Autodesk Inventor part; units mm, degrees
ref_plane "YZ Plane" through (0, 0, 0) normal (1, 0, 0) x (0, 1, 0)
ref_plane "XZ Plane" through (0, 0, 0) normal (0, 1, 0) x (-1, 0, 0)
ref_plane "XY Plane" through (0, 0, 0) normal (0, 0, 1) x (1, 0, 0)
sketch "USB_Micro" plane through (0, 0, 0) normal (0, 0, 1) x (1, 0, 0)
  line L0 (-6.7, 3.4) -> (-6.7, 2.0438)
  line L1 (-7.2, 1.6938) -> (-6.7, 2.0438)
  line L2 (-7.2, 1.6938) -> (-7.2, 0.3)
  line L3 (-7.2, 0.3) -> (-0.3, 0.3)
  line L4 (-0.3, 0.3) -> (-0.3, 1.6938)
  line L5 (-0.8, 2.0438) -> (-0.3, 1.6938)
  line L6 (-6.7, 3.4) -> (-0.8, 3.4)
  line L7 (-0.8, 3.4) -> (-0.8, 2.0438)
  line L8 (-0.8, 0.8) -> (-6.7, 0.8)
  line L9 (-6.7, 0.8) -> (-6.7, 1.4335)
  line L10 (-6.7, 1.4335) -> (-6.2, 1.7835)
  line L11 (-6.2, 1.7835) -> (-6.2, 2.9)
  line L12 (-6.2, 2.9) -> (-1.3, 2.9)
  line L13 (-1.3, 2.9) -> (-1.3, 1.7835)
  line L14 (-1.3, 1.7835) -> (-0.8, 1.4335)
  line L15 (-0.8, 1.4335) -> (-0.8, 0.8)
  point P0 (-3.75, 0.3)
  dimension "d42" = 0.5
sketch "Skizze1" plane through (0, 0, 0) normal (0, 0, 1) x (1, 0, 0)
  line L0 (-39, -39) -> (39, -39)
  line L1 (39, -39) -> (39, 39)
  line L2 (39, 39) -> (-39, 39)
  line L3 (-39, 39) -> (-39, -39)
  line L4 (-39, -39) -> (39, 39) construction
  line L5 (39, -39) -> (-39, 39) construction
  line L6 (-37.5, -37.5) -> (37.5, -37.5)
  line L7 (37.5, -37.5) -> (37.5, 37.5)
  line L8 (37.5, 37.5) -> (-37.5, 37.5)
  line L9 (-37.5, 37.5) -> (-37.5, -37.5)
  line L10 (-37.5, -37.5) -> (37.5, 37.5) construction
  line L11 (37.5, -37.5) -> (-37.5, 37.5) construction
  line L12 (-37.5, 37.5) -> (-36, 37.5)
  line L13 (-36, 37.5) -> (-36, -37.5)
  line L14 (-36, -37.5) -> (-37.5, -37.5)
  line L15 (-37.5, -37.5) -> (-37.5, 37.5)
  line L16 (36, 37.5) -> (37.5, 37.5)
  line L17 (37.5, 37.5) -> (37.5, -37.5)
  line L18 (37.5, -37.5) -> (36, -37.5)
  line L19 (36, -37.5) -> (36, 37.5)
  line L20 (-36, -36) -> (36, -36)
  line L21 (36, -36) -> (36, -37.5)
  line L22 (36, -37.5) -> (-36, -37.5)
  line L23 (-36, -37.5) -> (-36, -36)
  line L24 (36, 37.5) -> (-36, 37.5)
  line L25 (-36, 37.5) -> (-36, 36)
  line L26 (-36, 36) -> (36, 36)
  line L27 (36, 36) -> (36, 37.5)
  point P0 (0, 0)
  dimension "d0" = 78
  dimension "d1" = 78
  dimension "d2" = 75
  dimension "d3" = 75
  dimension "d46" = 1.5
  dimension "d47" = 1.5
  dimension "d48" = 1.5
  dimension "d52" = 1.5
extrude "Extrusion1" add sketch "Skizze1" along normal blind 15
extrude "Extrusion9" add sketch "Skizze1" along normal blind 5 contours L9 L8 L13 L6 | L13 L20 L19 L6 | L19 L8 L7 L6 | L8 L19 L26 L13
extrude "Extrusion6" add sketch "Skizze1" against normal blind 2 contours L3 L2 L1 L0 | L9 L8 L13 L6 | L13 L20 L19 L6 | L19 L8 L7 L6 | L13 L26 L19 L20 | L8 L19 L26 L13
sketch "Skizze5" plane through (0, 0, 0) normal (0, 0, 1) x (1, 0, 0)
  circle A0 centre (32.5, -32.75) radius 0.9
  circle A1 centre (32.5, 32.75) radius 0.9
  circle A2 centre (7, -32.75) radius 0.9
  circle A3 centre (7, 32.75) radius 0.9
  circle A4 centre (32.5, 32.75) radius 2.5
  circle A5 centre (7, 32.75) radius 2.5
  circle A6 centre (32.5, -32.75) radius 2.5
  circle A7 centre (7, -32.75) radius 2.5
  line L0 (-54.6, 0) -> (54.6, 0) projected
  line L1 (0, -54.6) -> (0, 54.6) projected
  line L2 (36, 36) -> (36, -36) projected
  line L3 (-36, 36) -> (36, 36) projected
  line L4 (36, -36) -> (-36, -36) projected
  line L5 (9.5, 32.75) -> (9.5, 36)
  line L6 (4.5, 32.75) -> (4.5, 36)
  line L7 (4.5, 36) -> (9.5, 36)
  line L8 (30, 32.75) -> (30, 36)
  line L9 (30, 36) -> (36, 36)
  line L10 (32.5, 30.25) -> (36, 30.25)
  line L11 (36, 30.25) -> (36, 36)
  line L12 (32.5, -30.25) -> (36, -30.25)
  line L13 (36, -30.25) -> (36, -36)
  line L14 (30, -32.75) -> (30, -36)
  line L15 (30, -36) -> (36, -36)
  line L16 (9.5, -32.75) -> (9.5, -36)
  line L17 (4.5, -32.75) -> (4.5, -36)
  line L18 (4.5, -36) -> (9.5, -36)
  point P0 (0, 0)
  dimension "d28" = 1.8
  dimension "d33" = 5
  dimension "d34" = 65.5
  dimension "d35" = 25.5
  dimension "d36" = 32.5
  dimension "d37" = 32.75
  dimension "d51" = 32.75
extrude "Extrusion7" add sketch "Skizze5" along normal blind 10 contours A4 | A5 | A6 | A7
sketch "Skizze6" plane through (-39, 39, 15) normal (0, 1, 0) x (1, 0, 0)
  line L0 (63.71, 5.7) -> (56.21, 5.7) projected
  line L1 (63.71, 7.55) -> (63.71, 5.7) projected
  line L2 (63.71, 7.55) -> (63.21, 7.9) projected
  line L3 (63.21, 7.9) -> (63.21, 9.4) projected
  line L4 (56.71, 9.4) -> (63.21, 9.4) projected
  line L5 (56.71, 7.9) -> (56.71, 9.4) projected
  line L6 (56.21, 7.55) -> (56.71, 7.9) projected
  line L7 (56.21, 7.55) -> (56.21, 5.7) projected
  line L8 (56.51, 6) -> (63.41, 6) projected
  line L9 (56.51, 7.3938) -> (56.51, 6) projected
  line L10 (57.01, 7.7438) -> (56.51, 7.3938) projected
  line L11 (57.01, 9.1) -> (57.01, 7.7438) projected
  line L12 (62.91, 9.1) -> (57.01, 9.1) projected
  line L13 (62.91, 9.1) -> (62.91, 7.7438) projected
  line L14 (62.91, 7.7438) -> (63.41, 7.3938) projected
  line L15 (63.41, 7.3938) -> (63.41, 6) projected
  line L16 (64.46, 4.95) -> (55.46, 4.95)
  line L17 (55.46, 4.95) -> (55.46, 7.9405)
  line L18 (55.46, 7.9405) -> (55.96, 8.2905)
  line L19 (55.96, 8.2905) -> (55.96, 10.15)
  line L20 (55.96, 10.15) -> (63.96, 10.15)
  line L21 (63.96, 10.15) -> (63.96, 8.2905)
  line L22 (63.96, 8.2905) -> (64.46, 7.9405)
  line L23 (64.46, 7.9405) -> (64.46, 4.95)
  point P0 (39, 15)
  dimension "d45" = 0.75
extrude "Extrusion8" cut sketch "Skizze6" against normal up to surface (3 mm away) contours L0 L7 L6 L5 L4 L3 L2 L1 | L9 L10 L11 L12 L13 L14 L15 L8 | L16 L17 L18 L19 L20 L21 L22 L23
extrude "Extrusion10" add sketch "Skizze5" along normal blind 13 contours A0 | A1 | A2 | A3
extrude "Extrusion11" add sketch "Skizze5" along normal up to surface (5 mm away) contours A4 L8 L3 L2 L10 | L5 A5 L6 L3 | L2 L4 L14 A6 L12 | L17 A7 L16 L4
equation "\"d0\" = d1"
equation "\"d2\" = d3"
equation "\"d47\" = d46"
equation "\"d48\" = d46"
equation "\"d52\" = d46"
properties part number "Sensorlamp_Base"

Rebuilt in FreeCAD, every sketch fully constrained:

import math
import FreeCAD as App
import Part
import Sketcher
from FreeCAD import Vector
Q = App.Units.Quantity


def add_polygon(sketch, points):
    """Adds a closed chain of lines whose ends are joined by coincident constraints."""
    first, n = sketch.GeometryCount, len(points)
    for a, b in zip(points, points[1:] + points[:1]):
        sketch.addGeometry(Part.LineSegment(App.Vector(*a, 0), App.Vector(*b, 0)), False)
    for i in range(n):
        sketch.addConstraint(Sketcher.Constraint("Coincident", first + i, 2, first + (i + 1) % n, 1))

doc = App.newDocument("Part")
params = doc.addObject("Spreadsheet::Sheet", "Params")
for row, (alias, value) in enumerate([
    ("sketch1_width", "78 mm"),
    ("sketch1_width2", "75 mm"),
    ("pad1_length", "15 mm"),
    ("sketch2_width", "75 mm"),
    ("pad2_length", "5 mm"),
    ("sketch3_width", "78 mm"),
    ("pad3_length", "2 mm"),
    ("sketch4_diameter", "5 mm"),
    ("sketch4_diameter2", "1.8 mm"),
    ("pad4_length", "10 mm"),
    ("sketch5_width", "9 mm"),
    ("sketch5_width2", "8 mm"),
    ("pocket1_length", "3 mm"),
    ("sketch6_diameter", "1.8 mm"),
    ("pad5_length", "13 mm"),
    ("sketch7_radius", "2.5 mm"),
    ("sketch7_width", "6 mm"),
    ("pad6_length", "5 mm"),
], start=1):
    params.set(f"A{row}", alias)
    params.set(f"B{row}", "=" + value)
    params.setAlias(f"B{row}", alias)

body = doc.addObject("PartDesign::Body", "Body")

# Sketch on XY plane
sketch1 = doc.addObject("Sketcher::SketchObject", "Sketch")
body.addObject(sketch1)
sketch1.AttachmentSupport = (doc.XY_Plane, [""])
sketch1.MapMode = "FlatFace"
add_polygon(sketch1, [(-39, 39), (-39, -39), (39, -39), (39, 39)])  # lines 0-3
add_polygon(sketch1, [(38, -38), (-38, -38), (-38, 38), (38, 38)])  # lines 4-7
sketch1.addConstraint([
    Sketcher.Constraint("Vertical", 0),
    Sketcher.Constraint("Horizontal", 1),
    Sketcher.Constraint("Vertical", 2),
    Sketcher.Constraint("Horizontal", 3),
    Sketcher.Constraint("Horizontal", 4),
    Sketcher.Constraint("Vertical", 5),
    Sketcher.Constraint("Horizontal", 6),
    Sketcher.Constraint("Vertical", 7),
    Sketcher.Constraint("Symmetric", 0, 2, 2, 2, -1, 1),
    Sketcher.Constraint("Symmetric", 4, 2, 6, 2, -1, 1),
    Sketcher.Constraint("Equal", 3, 0),
    Sketcher.Constraint("Equal", 6, 5),
    Sketcher.Constraint("DistanceX", 1, 1, 1, 2, Q("78 mm")),
    Sketcher.Constraint("DistanceX", 4, 2, 4, 1, Q("75 mm")),
])
sketch1.setExpression("Constraints[20]", "Params.sketch1_width")
sketch1.setExpression("Constraints[21]", "Params.sketch1_width2")
pad1 = doc.addObject("PartDesign::Pad", "Pad")
body.addObject(pad1)
pad1.Profile = sketch1
pad1.setExpression("Length", "Params.pad1_length")

# Sketch on XY plane
sketch2 = doc.addObject("Sketcher::SketchObject", "Sketch001")
body.addObject(sketch2)
sketch2.AttachmentSupport = (doc.XY_Plane, [""])
sketch2.MapMode = "FlatFace"
add_polygon(sketch2, [(-38, 38), (-38, -38), (38, -38), (38, 38)])  # lines 0-3
add_polygon(sketch2, [(-36, -36), (-36, 36), (36, 36), (36, -36)])  # lines 4-7
sketch2.addConstraint([
    Sketcher.Constraint("Vertical", 0),
    Sketcher.Constraint("Horizontal", 1),
    Sketcher.Constraint("Vertical", 2),
    Sketcher.Constraint("Horizontal", 3),
    Sketcher.Constraint("Vertical", 4),
    Sketcher.Constraint("Horizontal", 5),
    Sketcher.Constraint("Vertical", 6),
    Sketcher.Constraint("Horizontal", 7),
    Sketcher.Constraint("Symmetric", 0, 2, 2, 2, -1, 1),
    Sketcher.Constraint("Symmetric", 4, 2, 6, 2, -1, 1),
    Sketcher.Constraint("Equal", 3, 0),
    Sketcher.Constraint("Equal", 7, 4),
    Sketcher.Constraint("DistanceX", 1, 1, 1, 2, Q("75 mm")),
    Sketcher.Constraint("DistanceX", 3, 2, 4, 2, Q("1.5 mm")),
])
sketch2.setExpression("Constraints[20]", "Params.sketch2_width")
pad2 = doc.addObject("PartDesign::Pad", "Pad001")
body.addObject(pad2)
pad2.Profile = sketch2
pad2.setExpression("Length", "Params.pad2_length")

# Sketch on XY plane
sketch3 = doc.addObject("Sketcher::SketchObject", "Sketch002")
body.addObject(sketch3)
sketch3.AttachmentSupport = (doc.XY_Plane, [""])
sketch3.MapMode = "FlatFace"
add_polygon(sketch3, [(-39, 39), (-39, -39), (39, -39), (39, 39)])  # lines 0-3
sketch3.addConstraint([
    Sketcher.Constraint("Vertical", 0),
    Sketcher.Constraint("Horizontal", 1),
    Sketcher.Constraint("Vertical", 2),
    Sketcher.Constraint("Horizontal", 3),
    Sketcher.Constraint("Symmetric", 0, 2, 2, 2, -1, 1),
    Sketcher.Constraint("Equal", 3, 0),
    Sketcher.Constraint("DistanceX", 1, 1, 1, 2, Q("78 mm")),
])
sketch3.setExpression("Constraints[10]", "Params.sketch3_width")
pad3 = doc.addObject("PartDesign::Pad", "Pad002")
body.addObject(pad3)
pad3.Profile = sketch3
pad3.setExpression("Length", "Params.pad3_length")
pad3.Reversed = True

# Sketch on XY plane
sketch4 = doc.addObject("Sketcher::SketchObject", "Sketch003")
body.addObject(sketch4)
sketch4.AttachmentSupport = (doc.XY_Plane, [""])
sketch4.MapMode = "FlatFace"
sketch4.addGeometry([
    Part.Circle(Vector(32.5, 32.8, 0), Vector(0, 0, 1), 2.5),  # 0
    Part.Circle(Vector(32.5, 32.8, 0), Vector(0, 0, 1), 0.9),  # 1
    Part.Circle(Vector(7, 32.8, 0), Vector(0, 0, 1), 2.5),  # 2
    Part.Circle(Vector(7, 32.8, 0), Vector(0, 0, 1), 0.9),  # 3
    Part.Circle(Vector(32.5, -32.8, 0), Vector(0, 0, 1), 2.5),  # 4
    Part.Circle(Vector(32.5, -32.8, 0), Vector(0, 0, 1), 0.9),  # 5
    Part.Circle(Vector(7, -32.8, 0), Vector(0, 0, 1), 2.5),  # 6
    Part.Circle(Vector(7, -32.8, 0), Vector(0, 0, 1), 0.9),  # 7
], False)
sketch4.addConstraint([
    Sketcher.Constraint("Coincident", 1, 3, 0, 3),
    Sketcher.Constraint("Coincident", 3, 3, 2, 3),
    Sketcher.Constraint("Coincident", 5, 3, 4, 3),
    Sketcher.Constraint("Coincident", 7, 3, 6, 3),
    Sketcher.Constraint("Equal", 0, 2),
    Sketcher.Constraint("Equal", 1, 3),
    Sketcher.Constraint("Equal", 2, 4),
    Sketcher.Constraint("Equal", 3, 5),
    Sketcher.Constraint("Equal", 4, 6),
    Sketcher.Constraint("Equal", 5, 7),
    Sketcher.Constraint("Symmetric", 0, 3, 4, 3, -1),
    Sketcher.Constraint("Symmetric", 2, 3, 6, 3, -1),
    Sketcher.Constraint("Horizontal", 1, 3, 2, 3),
    Sketcher.Constraint("Diameter", 0, Q("5 mm")),
    Sketcher.Constraint("Diameter", 1, Q("1.8 mm")),
    Sketcher.Constraint("DistanceX", -1, 1, 0, 3, Q("32.5 mm")),
    Sketcher.Constraint("DistanceX", 2, 3, 0, 3, Q("25.5 mm")),
    Sketcher.Constraint("DistanceY", 4, 3, 0, 3, Q("65.5 mm")),
])
sketch4.setExpression("Constraints[13]", "Params.sketch4_diameter")
sketch4.setExpression("Constraints[14]", "Params.sketch4_diameter2")
pad4 = doc.addObject("PartDesign::Pad", "Pad003")
body.addObject(pad4)
pad4.Profile = sketch4
pad4.setExpression("Length", "Params.pad4_length")

# Sketch on XZ plane
sketch5 = doc.addObject("Sketcher::SketchObject", "Sketch004")
body.addObject(sketch5)
sketch5.AttachmentSupport = (doc.XZ_Plane, [""])
sketch5.MapMode = "FlatFace"
sketch5.AttachmentOffset = App.Placement(Vector(0, 0, -39), App.Rotation())
add_polygon(sketch5, [(16.5, 10.1), (25.5, 10.1), (25.5, 7.1), (25, 6.7), (25, 4.8), (17, 4.8), (17, 6.7), (16.5, 7.1)])  # lines 0-7
sketch5.addConstraint([
    Sketcher.Constraint("Horizontal", 0),
    Sketcher.Constraint("Vertical", 1),
    Sketcher.Constraint("Vertical", 3),
    Sketcher.Constraint("Horizontal", 4),
    Sketcher.Constraint("Vertical", 5),
    Sketcher.Constraint("Vertical", 7),
    Sketcher.Constraint("Horizontal", 2, 2, 5, 2),
    Sketcher.Constraint("Horizontal", 1, 2, 6, 2),
    Sketcher.Constraint("Equal", 2, 6),
    Sketcher.Constraint("DistanceX", 0, 1, 0, 2, Q("9 mm")),
    Sketcher.Constraint("DistanceX", 4, 2, 4, 1, Q("8 mm")),
    Sketcher.Constraint("DistanceY", 3, 2, 0, 2, Q("5.2 mm")),
    Sketcher.Constraint("DistanceX", -1, 1, 0, 2, Q("25.46 mm")),
    Sketcher.Constraint("DistanceY", -1, 1, 0, 2, Q("10.05 mm")),
    Sketcher.Constraint("DistanceY", 2, 2, 1, 2, Q("0.35 mm")),
    Sketcher.Constraint("DistanceY", 1, 2, 1, 1, Q("2.9905 mm")),
])
sketch5.setExpression("Constraints[17]", "Params.sketch5_width")
sketch5.setExpression("Constraints[18]", "Params.sketch5_width2")
pocket1 = doc.addObject("PartDesign::Pocket", "Pocket")
body.addObject(pocket1)
pocket1.Profile = sketch5
pocket1.setExpression("Length", "Params.pocket1_length")
pocket1.Reversed = True

# Sketch on XY plane
sketch6 = doc.addObject("Sketcher::SketchObject", "Sketch005")
body.addObject(sketch6)
sketch6.AttachmentSupport = (doc.XY_Plane, [""])
sketch6.MapMode = "FlatFace"
sketch6.addGeometry([
    Part.Circle(Vector(32.5, -32.8, 0), Vector(0, 0, 1), 0.9),
    Part.Circle(Vector(32.5, 32.8, 0), Vector(0, 0, 1), 0.9),
    Part.Circle(Vector(7, -32.8, 0), Vector(0, 0, 1), 0.9),
    Part.Circle(Vector(7, 32.8, 0), Vector(0, 0, 1), 0.9),
], False)
sketch6.addConstraint([
    Sketcher.Constraint("Equal", 0, 1),
    Sketcher.Constraint("Equal", 1, 2),
    Sketcher.Constraint("Equal", 2, 3),
    Sketcher.Constraint("Symmetric", 0, 3, 1, 3, -1),
    Sketcher.Constraint("Symmetric", 2, 3, 3, 3, -1),
    Sketcher.Constraint("Horizontal", 0, 3, 2, 3),
    Sketcher.Constraint("Diameter", 0, Q("1.8 mm")),
    Sketcher.Constraint("DistanceX", -1, 1, 0, 3, Q("32.5 mm")),
    Sketcher.Constraint("DistanceY", 0, 3, 1, 3, Q("65.5 mm")),
    Sketcher.Constraint("DistanceX", 2, 3, 0, 3, Q("25.5 mm")),
])
sketch6.setExpression("Constraints[6]", "Params.sketch6_diameter")
pad5 = doc.addObject("PartDesign::Pad", "Pad004")
body.addObject(pad5)
pad5.Profile = sketch6
pad5.setExpression("Length", "Params.pad5_length")

# Sketch on XY plane
sketch7 = doc.addObject("Sketcher::SketchObject", "Sketch006")
body.addObject(sketch7)
sketch7.AttachmentSupport = (doc.XY_Plane, [""])
sketch7.MapMode = "FlatFace"
sketch7.addGeometry([
    Part.ArcOfCircle(Part.Circle(Vector(32.5, 32.8, 0), Vector(0, 0, 1), 2.5), math.radians(-90), math.radians(180)),  # 0
    Part.LineSegment(Vector(32.5, 30.2, 0), Vector(36, 30.2, 0)),  # 1
    Part.LineSegment(Vector(36, 30.2, 0), Vector(36, 36, 0)),  # 2
    Part.LineSegment(Vector(36, 36, 0), Vector(30, 36, 0)),  # 3
    Part.LineSegment(Vector(30, 36, 0), Vector(30, 32.8, 0)),  # 4
    Part.LineSegment(Vector(9.5, 32.8, 0), Vector(9.5, 36, 0)),  # 5
    Part.LineSegment(Vector(9.5, 36, 0), Vector(4.5, 36, 0)),  # 6
    Part.LineSegment(Vector(4.5, 36, 0), Vector(4.5, 32.8, 0)),  # 7
    Part.ArcOfCircle(Part.Circle(Vector(7, 32.8, 0), Vector(0, 0, 1), 2.5), math.radians(0), math.radians(180)),  # 8
    Part.LineSegment(Vector(36, -36, 0), Vector(36, -30.2, 0)),  # 9
    Part.LineSegment(Vector(36, -30.2, 0), Vector(32.5, -30.2, 0)),  # 10
    Part.ArcOfCircle(Part.Circle(Vector(32.5, -32.8, 0), Vector(0, 0, 1), 2.5), math.radians(180), math.radians(450)),  # 11
    Part.LineSegment(Vector(30, -32.8, 0), Vector(30, -36, 0)),  # 12
    Part.LineSegment(Vector(30, -36, 0), Vector(36, -36, 0)),  # 13
    Part.LineSegment(Vector(4.5, -32.8, 0), Vector(4.5, -36, 0)),  # 14
    Part.LineSegment(Vector(4.5, -36, 0), Vector(9.5, -36, 0)),  # 15
    Part.LineSegment(Vector(9.5, -36, 0), Vector(9.5, -32.8, 0)),  # 16
    Part.ArcOfCircle(Part.Circle(Vector(7, -32.8, 0), Vector(0, 0, 1), 2.5), math.radians(180), math.radians(360)),  # 17
], False)
sketch7.addConstraint([
    Sketcher.Constraint("Tangent", 0, 1, 1, 1),
    Sketcher.Constraint("Coincident", 1, 2, 2, 1),
    Sketcher.Constraint("Coincident", 2, 2, 3, 1),
    Sketcher.Constraint("Coincident", 3, 2, 4, 1),
    Sketcher.Constraint("Tangent", 4, 2, 0, 2),
    Sketcher.Constraint("Coincident", 5, 2, 6, 1),
    Sketcher.Constraint("Coincident", 6, 2, 7, 1),
    Sketcher.Constraint("Tangent", 7, 2, 8, 2),
    Sketcher.Constraint("Tangent", 8, 1, 5, 1),
    Sketcher.Constraint("Coincident", 9, 2, 10, 1),
    Sketcher.Constraint("Tangent", 10, 2, 11, 2),
    Sketcher.Constraint("Tangent", 11, 1, 12, 1),
    Sketcher.Constraint("Coincident", 12, 2, 13, 1),
    Sketcher.Constraint("Coincident", 13, 2, 9, 1),
    Sketcher.Constraint("Coincident", 14, 2, 15, 1),
    Sketcher.Constraint("Coincident", 15, 2, 16, 1),
    Sketcher.Constraint("Tangent", 16, 2, 17, 2),
    Sketcher.Constraint("Tangent", 17, 1, 14, 1),
    Sketcher.Constraint("Horizontal", 1),
    Sketcher.Constraint("Vertical", 2),
    Sketcher.Constraint("Horizontal", 3),
    Sketcher.Constraint("Vertical", 4),
    Sketcher.Constraint("Vertical", 5),
    Sketcher.Constraint("Horizontal", 6),
    Sketcher.Constraint("Vertical", 7),
    Sketcher.Constraint("Vertical", 9),
    Sketcher.Constraint("Horizontal", 10),
    Sketcher.Constraint("Vertical", 12),
    Sketcher.Constraint("Horizontal", 13),
    Sketcher.Constraint("Vertical", 14),
    Sketcher.Constraint("Horizontal", 15),
    Sketcher.Constraint("Vertical", 16),
    Sketcher.Constraint("Equal", 0, 8),
    Sketcher.Constraint("Equal", 8, 11),
    Sketcher.Constraint("Equal", 11, 17),
    Sketcher.Constraint("Symmetric", 0, 3, 11, 3, -1),
    Sketcher.Constraint("Symmetric", 8, 3, 17, 3, -1),
    Sketcher.Constraint("Symmetric", 2, 2, 13, 2, -1),
    Sketcher.Constraint("Horizontal", 0, 3, 8, 3),
    Sketcher.Constraint("Horizontal", 3, 2, 5, 2),
    Sketcher.Constraint("Horizontal", 13, 2, 14, 2),
    Sketcher.Constraint("Radius", 0, Q("2.5 mm")),
    Sketcher.Constraint("DistanceX", -1, 1, 0, 3, Q("32.5 mm")),
    Sketcher.Constraint("DistanceX", 8, 3, 0, 3, Q("25.5 mm")),
    Sketcher.Constraint("DistanceY", 11, 3, 0, 3, Q("65.5 mm")),
    Sketcher.Constraint("DistanceX", 3, 2, 3, 1, Q("6 mm")),
    Sketcher.Constraint("DistanceY", -1, 1, 2, 2, Q("36 mm")),
])
sketch7.setExpression("Constraints[41]", "Params.sketch7_radius")
sketch7.setExpression("Constraints[45]", "Params.sketch7_width")
pad6 = doc.addObject("PartDesign::Pad", "Pad005")
body.addObject(pad6)
pad6.Profile = sketch7
pad6.setExpression("Length", "Params.pad6_length")

doc.recompute()
